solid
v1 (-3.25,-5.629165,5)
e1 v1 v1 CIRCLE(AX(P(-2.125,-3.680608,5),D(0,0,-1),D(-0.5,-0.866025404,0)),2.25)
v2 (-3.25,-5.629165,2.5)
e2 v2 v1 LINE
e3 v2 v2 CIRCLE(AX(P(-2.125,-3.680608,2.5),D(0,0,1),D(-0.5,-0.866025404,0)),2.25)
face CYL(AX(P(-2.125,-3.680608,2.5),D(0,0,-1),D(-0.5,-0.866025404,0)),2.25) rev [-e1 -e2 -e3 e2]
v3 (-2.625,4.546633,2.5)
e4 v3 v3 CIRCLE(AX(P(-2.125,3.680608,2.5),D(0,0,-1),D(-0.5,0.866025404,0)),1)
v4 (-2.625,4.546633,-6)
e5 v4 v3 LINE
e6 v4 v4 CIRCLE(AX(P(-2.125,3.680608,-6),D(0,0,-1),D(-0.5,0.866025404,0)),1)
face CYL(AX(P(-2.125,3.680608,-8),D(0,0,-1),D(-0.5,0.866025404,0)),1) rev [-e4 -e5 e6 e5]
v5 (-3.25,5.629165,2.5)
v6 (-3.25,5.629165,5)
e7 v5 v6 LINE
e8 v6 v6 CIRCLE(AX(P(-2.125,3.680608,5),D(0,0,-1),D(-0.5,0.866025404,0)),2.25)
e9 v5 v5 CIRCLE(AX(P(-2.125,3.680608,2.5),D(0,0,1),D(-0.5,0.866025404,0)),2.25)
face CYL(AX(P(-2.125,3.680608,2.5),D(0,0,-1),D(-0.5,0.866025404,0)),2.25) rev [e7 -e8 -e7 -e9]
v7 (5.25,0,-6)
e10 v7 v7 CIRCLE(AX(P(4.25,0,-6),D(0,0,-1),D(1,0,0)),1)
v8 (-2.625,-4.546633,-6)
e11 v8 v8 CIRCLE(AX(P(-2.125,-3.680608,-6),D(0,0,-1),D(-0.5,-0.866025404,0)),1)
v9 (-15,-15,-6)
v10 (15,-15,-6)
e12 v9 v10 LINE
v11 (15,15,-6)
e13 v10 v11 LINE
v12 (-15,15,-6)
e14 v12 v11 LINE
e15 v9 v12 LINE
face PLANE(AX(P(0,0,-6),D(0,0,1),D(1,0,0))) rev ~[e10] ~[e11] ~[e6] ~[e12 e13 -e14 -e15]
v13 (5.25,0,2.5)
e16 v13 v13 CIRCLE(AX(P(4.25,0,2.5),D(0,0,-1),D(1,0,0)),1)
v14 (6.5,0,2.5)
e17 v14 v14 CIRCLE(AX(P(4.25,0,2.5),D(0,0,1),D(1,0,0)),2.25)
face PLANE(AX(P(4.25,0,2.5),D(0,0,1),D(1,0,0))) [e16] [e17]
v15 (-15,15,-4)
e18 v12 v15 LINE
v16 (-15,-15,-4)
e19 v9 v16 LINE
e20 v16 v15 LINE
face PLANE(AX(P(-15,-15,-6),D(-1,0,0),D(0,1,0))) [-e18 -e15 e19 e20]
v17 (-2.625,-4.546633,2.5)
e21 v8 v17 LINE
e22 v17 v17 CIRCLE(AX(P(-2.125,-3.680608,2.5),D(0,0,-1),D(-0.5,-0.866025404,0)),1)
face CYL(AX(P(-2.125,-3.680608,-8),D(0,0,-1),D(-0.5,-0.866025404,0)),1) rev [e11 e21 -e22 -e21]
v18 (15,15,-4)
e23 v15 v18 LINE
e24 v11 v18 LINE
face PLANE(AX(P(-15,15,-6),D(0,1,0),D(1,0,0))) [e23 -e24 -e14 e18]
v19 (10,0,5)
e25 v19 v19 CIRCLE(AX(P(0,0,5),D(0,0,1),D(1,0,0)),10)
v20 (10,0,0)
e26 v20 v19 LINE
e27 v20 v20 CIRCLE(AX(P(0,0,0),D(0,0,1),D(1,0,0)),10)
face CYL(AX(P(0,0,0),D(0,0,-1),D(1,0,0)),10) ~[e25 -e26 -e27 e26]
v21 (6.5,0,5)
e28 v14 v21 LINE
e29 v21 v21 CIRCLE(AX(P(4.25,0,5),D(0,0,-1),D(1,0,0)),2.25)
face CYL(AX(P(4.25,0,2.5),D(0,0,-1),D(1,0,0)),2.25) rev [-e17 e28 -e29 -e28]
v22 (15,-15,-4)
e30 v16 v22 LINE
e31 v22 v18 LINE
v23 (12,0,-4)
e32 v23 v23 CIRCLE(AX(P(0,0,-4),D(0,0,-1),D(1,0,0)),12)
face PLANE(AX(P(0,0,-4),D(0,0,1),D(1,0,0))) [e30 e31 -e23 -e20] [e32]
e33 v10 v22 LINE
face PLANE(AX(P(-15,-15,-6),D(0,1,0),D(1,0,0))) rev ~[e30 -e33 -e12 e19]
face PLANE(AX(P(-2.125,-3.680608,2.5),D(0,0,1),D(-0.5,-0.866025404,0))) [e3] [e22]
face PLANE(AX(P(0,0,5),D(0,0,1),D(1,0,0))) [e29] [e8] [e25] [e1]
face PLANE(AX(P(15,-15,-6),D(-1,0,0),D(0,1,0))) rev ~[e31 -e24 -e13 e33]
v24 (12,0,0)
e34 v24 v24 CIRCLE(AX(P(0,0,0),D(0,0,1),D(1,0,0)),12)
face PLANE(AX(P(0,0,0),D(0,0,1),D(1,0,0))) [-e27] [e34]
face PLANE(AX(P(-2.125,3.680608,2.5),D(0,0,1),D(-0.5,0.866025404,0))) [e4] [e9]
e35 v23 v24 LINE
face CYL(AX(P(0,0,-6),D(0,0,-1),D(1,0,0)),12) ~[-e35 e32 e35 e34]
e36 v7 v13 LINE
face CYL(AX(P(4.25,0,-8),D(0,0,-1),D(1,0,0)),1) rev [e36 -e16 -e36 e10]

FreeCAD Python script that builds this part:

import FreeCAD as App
import Part
import Sketcher

V = App.Vector
Q = App.Units.Quantity


def add_polygon(sketch, points):
    """Adds a closed chain of lines whose ends are joined by coincident constraints."""
    first, n = sketch.GeometryCount, len(points)
    for a, b in zip(points, points[1:] + points[:1]):
        sketch.addGeometry(Part.LineSegment(App.Vector(*a, 0), App.Vector(*b, 0)), False)
    for i in range(n):
        sketch.addConstraint(Sketcher.Constraint("Coincident", first + i, 2, first + (i + 1) % n, 1))

doc = App.newDocument("Part")
body = doc.addObject("PartDesign::Body", "Body")

sketch1 = body.newObject("Sketcher::SketchObject", "Sketch")
sketch1.AttachmentSupport = (doc.getObject("XY_Plane"), [""])
sketch1.MapMode = "FlatFace"
sketch1.AttachmentOffset = App.Placement(V(0, 0, 2.5), App.Rotation())
sketch1.addGeometry(Part.Circle(V(0, 0, 0), V(0, 0, 1), 2.2), False)
sketch1.addConstraint(Sketcher.Constraint("Coincident", 0, 3, -1, 1))
sketch1.addConstraint(Sketcher.Constraint("Diameter", 0, Q("4.5 mm")))
pad1 = body.newObject("PartDesign::Pad", "Pad")
pad1.Profile = sketch1
pad1.Length = 8
body2 = doc.addObject("PartDesign::Body", "Body001")

sketch2 = body2.newObject("Sketcher::SketchObject", "Sketch001")
sketch2.AttachmentSupport = (doc.getObject("XY_Plane001"), [""])
sketch2.MapMode = "FlatFace"
sketch2.AttachmentOffset = App.Placement(V(0, 0, -8), App.Rotation())
sketch2.addGeometry(Part.Circle(V(0, 0, 0), V(0, 0, 1), 1), False)
sketch2.addConstraint(Sketcher.Constraint("Coincident", 0, 3, -1, 1))
sketch2.addConstraint(Sketcher.Constraint("Diameter", 0, Q("2 mm")))
pad2 = body2.newObject("PartDesign::Pad", "Pad001")
pad2.Profile = sketch2
pad2.Length = 18
body3 = doc.addObject("PartDesign::Body", "Body002")

sketch3 = body3.newObject("Sketcher::SketchObject", "Sketch002")
sketch3.AttachmentSupport = (doc.getObject("XY_Plane002"), [""])
sketch3.MapMode = "FlatFace"
sketch3.AttachmentOffset = App.Placement(V(0, 0, 4.5), App.Rotation())
sketch3.addGeometry(Part.Circle(V(0, 0, 0), V(0, 0, 1), 1), False)
sketch3.addConstraint(Sketcher.Constraint("Coincident", 0, 3, -1, 1))
sketch3.addConstraint(Sketcher.Constraint("Diameter", 0, Q("2 mm")))
pad3 = body3.newObject("PartDesign::Pad", "Pad002")
pad3.Profile = sketch3
pad3.Length = 1
doc.recompute()

boolean = body3.newObject("PartDesign::Boolean", "Boolean")
boolean.Type = "Fuse"
boolean.addObjects([body])
doc.recompute()

boolean2 = body3.newObject("PartDesign::Boolean", "Boolean001")
boolean2.Type = "Fuse"
boolean2.addObjects([body2])
body4 = doc.addObject("PartDesign::Body", "Body003")
doc.recompute()

body3.Placement = App.Placement(V(4.25, 0, 0), App.Rotation(V(0, 0, 1), 0))
boolean3 = body4.newObject("PartDesign::Boolean", "Boolean002")
boolean3.Type = "Fuse"
boolean3.addObjects([body3])
body5 = doc.addObject("PartDesign::Body", "Body004")
body5.AllowCompound = True
doc.recompute()

body5.BaseFeature = body4
doc.recompute()

body6 = doc.addObject("PartDesign::Body", "Body005")
body6.BaseFeature = body4
body6.Placement = App.Placement(V(0, 0, 0), App.Rotation(V(0, 0, 1), 120))
boolean4 = body5.newObject("PartDesign::Boolean", "Boolean003")
boolean4.Type = "Fuse"
boolean4.addObjects([body6])
doc.recompute()

body4.Placement = App.Placement(V(0, 0, 0), App.Rotation(V(0, 0, 1), 240))
boolean5 = body5.newObject("PartDesign::Boolean", "Boolean004")
boolean5.Type = "Fuse"
boolean5.addObjects([body4])
body7 = doc.addObject("PartDesign::Body", "Body006")

sketch4 = body7.newObject("Sketcher::SketchObject", "Sketch003")
sketch4.AttachmentSupport = (doc.getObject("XY_Plane006"), [""])
sketch4.MapMode = "FlatFace"
sketch4.addGeometry(Part.Circle(V(0, 0, 0), V(0, 0, 1), 10), False)
sketch4.addConstraint(Sketcher.Constraint("Coincident", 0, 3, -1, 1))
sketch4.addConstraint(Sketcher.Constraint("Diameter", 0, Q("20 mm")))
pad4 = body7.newObject("PartDesign::Pad", "Pad003")
pad4.Profile = sketch4
pad4.Length = 5
body8 = doc.addObject("PartDesign::Body", "Body007")

sketch5 = body8.newObject("Sketcher::SketchObject", "Sketch004")
sketch5.AttachmentSupport = (doc.getObject("XY_Plane007"), [""])
sketch5.MapMode = "FlatFace"
sketch5.AttachmentOffset = App.Placement(V(0, 0, -6), App.Rotation())
add_polygon(sketch5, [(-15, 15), (-15, -15), (15, -15), (15, 15)])
sketch5.addConstraint(Sketcher.Constraint("Vertical", 0))
sketch5.addConstraint(Sketcher.Constraint("Horizontal", 1))
sketch5.addConstraint(Sketcher.Constraint("Vertical", 2))
sketch5.addConstraint(Sketcher.Constraint("Horizontal", 3))
sketch5.addConstraint(Sketcher.Constraint("Symmetric", 0, 2, 2, 2, -1, 1))
sketch5.addConstraint(Sketcher.Constraint("Equal", 3, 0))
sketch5.addConstraint(Sketcher.Constraint("DistanceX", 1, 1, 1, 2, Q("30 mm")))
pad5 = body8.newObject("PartDesign::Pad", "Pad004")
pad5.Profile = sketch5
pad5.Length = 2
body9 = doc.addObject("PartDesign::Body", "Body008")

sketch6 = body9.newObject("Sketcher::SketchObject", "Sketch005")
sketch6.AttachmentSupport = (doc.getObject("XY_Plane008"), [""])
sketch6.MapMode = "FlatFace"
sketch6.AttachmentOffset = App.Placement(V(0, 0, -6), App.Rotation())
sketch6.addGeometry(Part.Circle(V(0, 0, 0), V(0, 0, 1), 12), False)
sketch6.addConstraint(Sketcher.Constraint("Coincident", 0, 3, -1, 1))
sketch6.addConstraint(Sketcher.Constraint("Diameter", 0, Q("24 mm")))
pad6 = body9.newObject("PartDesign::Pad", "Pad005")
pad6.Profile = sketch6
pad6.Length = 6
doc.recompute()

boolean6 = body9.newObject("PartDesign::Boolean", "Boolean005")
boolean6.Type = "Fuse"
boolean6.addObjects([body7])
doc.recompute()

boolean7 = body9.newObject("PartDesign::Boolean", "Boolean006")
boolean7.Type = "Fuse"
boolean7.addObjects([body8])
doc.recompute()

boolean8 = body9.newObject("PartDesign::Boolean", "Boolean007")
boolean8.Type = "Cut"
boolean8.addObjects([body5])

doc.recompute()
